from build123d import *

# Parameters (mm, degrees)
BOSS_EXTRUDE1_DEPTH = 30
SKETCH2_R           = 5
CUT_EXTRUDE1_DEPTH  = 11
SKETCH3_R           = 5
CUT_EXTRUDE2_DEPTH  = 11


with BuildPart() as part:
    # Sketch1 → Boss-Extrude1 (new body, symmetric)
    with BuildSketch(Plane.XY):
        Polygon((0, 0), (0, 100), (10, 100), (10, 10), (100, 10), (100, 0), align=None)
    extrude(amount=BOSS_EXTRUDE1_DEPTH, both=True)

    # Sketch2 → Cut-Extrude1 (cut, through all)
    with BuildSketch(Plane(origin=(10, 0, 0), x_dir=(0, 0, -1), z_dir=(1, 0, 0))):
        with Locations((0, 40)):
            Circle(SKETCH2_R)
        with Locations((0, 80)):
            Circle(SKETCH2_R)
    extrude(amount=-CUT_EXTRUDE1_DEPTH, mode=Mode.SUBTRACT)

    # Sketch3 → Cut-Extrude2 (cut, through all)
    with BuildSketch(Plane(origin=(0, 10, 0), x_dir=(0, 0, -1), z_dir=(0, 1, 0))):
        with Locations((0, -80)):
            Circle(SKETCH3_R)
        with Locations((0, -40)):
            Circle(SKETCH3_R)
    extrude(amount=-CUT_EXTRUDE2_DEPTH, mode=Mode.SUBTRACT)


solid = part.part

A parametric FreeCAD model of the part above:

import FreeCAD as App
import Part
import Sketcher

V = App.Vector

doc = App.newDocument("Part")
body = doc.addObject("PartDesign::Body", "Body")

# Sketch on XY plane
sketch1 = body.newObject("Sketcher::SketchObject", "Sketch")
sketch1.AttachmentSupport = (doc.getObject("XY_Plane"), [""])
sketch1.MapMode = "FlatFace"
sketch1.addGeometry([
    Part.LineSegment(V(0, 100, 0), V(0, 0, 0)),  # 0
    Part.LineSegment(V(0, 0, 0), V(100, 0, 0)),  # 1
    Part.LineSegment(V(100, 0, 0), V(100, 10, 0)),  # 2
    Part.LineSegment(V(100, 10, 0), V(10, 10, 0)),  # 3
    Part.LineSegment(V(10, 10, 0), V(10, 100, 0)),  # 4
    Part.LineSegment(V(10, 100, 0), V(0, 100, 0)),  # 5
], False)
sketch1.addConstraint([
    Sketcher.Constraint("Coincident", 0, 2, 1, 1),
    Sketcher.Constraint("Coincident", 1, 2, 2, 1),
    Sketcher.Constraint("Coincident", 2, 2, 3, 1),
    Sketcher.Constraint("Coincident", 3, 2, 4, 1),
    Sketcher.Constraint("Coincident", 4, 2, 5, 1),
    Sketcher.Constraint("Coincident", 5, 2, 0, 1),
    Sketcher.Constraint("Vertical", 0),
    Sketcher.Constraint("Horizontal", 1),
    Sketcher.Constraint("Vertical", 2),
    Sketcher.Constraint("Horizontal", 3),
    Sketcher.Constraint("Vertical", 4),
    Sketcher.Constraint("Horizontal", 5),
    Sketcher.Constraint("Coincident", 0, 2, -1, 1),
    Sketcher.Constraint("Equal", 1, 0),
    Sketcher.Constraint("Equal", 5, 2),
    Sketcher.Constraint("DistanceX", 1, 1, 1, 2, 100.0),
    Sketcher.Constraint("DistanceX", 3, 2, 3, 1, 90.0),
])
pad1 = body.newObject("PartDesign::Pad", "Pad")
pad1.Profile = sketch1
pad1.Length = 60
pad1.Midplane = True

# Sketch on YZ plane
sketch2 = body.newObject("Sketcher::SketchObject", "Sketch001")
sketch2.AttachmentSupport = (doc.getObject("YZ_Plane"), [""])
sketch2.MapMode = "FlatFace"
sketch2.AttachmentOffset = App.Placement(V(0, 0, 10), App.Rotation())
sketch2.addGeometry([
    Part.Circle(V(40, 0, 0), V(0, 0, 1), 5),
    Part.Circle(V(80, 0, 0), V(0, 0, 1), 5),
], False)
sketch2.addConstraint([
    Sketcher.Constraint("Equal", 0, 1),
    Sketcher.Constraint("PointOnObject", 0, 3, -1),
    Sketcher.Constraint("PointOnObject", 1, 3, -1),
    Sketcher.Constraint("Diameter", 0, 10.0),
    Sketcher.Constraint("DistanceX", -1, 1, 0, 3, 40.0),
    Sketcher.Constraint("DistanceX", -1, 1, 1, 3, 80.0),
])
pocket1 = body.newObject("PartDesign::Pocket", "Pocket")
pocket1.Profile = sketch2
pocket1.Type = "ThroughAll"

# Sketch on XZ plane
sketch3 = body.newObject("Sketcher::SketchObject", "Sketch002")
sketch3.AttachmentSupport = (doc.getObject("XZ_Plane"), [""])
sketch3.MapMode = "FlatFace"
sketch3.AttachmentOffset = App.Placement(V(0, 0, -10), App.Rotation())
sketch3.addGeometry([
    Part.Circle(V(80, 0, 0), V(0, 0, 1), 5),
    Part.Circle(V(40, 0, 0), V(0, 0, 1), 5),
], False)
sketch3.addConstraint([
    Sketcher.Constraint("Equal", 0, 1),
    Sketcher.Constraint("PointOnObject", 0, 3, -1),
    Sketcher.Constraint("PointOnObject", 1, 3, -1),
    Sketcher.Constraint("Diameter", 0, 10.0),
    Sketcher.Constraint("DistanceX", -1, 1, 0, 3, 80.0),
    Sketcher.Constraint("DistanceX", -1, 1, 1, 3, 40.0),
])
pocket2 = body.newObject("PartDesign::Pocket", "Pocket001")
pocket2.Profile = sketch3
pocket2.Type = "ThroughAll"
pocket2.Reversed = True

doc.recompute()
